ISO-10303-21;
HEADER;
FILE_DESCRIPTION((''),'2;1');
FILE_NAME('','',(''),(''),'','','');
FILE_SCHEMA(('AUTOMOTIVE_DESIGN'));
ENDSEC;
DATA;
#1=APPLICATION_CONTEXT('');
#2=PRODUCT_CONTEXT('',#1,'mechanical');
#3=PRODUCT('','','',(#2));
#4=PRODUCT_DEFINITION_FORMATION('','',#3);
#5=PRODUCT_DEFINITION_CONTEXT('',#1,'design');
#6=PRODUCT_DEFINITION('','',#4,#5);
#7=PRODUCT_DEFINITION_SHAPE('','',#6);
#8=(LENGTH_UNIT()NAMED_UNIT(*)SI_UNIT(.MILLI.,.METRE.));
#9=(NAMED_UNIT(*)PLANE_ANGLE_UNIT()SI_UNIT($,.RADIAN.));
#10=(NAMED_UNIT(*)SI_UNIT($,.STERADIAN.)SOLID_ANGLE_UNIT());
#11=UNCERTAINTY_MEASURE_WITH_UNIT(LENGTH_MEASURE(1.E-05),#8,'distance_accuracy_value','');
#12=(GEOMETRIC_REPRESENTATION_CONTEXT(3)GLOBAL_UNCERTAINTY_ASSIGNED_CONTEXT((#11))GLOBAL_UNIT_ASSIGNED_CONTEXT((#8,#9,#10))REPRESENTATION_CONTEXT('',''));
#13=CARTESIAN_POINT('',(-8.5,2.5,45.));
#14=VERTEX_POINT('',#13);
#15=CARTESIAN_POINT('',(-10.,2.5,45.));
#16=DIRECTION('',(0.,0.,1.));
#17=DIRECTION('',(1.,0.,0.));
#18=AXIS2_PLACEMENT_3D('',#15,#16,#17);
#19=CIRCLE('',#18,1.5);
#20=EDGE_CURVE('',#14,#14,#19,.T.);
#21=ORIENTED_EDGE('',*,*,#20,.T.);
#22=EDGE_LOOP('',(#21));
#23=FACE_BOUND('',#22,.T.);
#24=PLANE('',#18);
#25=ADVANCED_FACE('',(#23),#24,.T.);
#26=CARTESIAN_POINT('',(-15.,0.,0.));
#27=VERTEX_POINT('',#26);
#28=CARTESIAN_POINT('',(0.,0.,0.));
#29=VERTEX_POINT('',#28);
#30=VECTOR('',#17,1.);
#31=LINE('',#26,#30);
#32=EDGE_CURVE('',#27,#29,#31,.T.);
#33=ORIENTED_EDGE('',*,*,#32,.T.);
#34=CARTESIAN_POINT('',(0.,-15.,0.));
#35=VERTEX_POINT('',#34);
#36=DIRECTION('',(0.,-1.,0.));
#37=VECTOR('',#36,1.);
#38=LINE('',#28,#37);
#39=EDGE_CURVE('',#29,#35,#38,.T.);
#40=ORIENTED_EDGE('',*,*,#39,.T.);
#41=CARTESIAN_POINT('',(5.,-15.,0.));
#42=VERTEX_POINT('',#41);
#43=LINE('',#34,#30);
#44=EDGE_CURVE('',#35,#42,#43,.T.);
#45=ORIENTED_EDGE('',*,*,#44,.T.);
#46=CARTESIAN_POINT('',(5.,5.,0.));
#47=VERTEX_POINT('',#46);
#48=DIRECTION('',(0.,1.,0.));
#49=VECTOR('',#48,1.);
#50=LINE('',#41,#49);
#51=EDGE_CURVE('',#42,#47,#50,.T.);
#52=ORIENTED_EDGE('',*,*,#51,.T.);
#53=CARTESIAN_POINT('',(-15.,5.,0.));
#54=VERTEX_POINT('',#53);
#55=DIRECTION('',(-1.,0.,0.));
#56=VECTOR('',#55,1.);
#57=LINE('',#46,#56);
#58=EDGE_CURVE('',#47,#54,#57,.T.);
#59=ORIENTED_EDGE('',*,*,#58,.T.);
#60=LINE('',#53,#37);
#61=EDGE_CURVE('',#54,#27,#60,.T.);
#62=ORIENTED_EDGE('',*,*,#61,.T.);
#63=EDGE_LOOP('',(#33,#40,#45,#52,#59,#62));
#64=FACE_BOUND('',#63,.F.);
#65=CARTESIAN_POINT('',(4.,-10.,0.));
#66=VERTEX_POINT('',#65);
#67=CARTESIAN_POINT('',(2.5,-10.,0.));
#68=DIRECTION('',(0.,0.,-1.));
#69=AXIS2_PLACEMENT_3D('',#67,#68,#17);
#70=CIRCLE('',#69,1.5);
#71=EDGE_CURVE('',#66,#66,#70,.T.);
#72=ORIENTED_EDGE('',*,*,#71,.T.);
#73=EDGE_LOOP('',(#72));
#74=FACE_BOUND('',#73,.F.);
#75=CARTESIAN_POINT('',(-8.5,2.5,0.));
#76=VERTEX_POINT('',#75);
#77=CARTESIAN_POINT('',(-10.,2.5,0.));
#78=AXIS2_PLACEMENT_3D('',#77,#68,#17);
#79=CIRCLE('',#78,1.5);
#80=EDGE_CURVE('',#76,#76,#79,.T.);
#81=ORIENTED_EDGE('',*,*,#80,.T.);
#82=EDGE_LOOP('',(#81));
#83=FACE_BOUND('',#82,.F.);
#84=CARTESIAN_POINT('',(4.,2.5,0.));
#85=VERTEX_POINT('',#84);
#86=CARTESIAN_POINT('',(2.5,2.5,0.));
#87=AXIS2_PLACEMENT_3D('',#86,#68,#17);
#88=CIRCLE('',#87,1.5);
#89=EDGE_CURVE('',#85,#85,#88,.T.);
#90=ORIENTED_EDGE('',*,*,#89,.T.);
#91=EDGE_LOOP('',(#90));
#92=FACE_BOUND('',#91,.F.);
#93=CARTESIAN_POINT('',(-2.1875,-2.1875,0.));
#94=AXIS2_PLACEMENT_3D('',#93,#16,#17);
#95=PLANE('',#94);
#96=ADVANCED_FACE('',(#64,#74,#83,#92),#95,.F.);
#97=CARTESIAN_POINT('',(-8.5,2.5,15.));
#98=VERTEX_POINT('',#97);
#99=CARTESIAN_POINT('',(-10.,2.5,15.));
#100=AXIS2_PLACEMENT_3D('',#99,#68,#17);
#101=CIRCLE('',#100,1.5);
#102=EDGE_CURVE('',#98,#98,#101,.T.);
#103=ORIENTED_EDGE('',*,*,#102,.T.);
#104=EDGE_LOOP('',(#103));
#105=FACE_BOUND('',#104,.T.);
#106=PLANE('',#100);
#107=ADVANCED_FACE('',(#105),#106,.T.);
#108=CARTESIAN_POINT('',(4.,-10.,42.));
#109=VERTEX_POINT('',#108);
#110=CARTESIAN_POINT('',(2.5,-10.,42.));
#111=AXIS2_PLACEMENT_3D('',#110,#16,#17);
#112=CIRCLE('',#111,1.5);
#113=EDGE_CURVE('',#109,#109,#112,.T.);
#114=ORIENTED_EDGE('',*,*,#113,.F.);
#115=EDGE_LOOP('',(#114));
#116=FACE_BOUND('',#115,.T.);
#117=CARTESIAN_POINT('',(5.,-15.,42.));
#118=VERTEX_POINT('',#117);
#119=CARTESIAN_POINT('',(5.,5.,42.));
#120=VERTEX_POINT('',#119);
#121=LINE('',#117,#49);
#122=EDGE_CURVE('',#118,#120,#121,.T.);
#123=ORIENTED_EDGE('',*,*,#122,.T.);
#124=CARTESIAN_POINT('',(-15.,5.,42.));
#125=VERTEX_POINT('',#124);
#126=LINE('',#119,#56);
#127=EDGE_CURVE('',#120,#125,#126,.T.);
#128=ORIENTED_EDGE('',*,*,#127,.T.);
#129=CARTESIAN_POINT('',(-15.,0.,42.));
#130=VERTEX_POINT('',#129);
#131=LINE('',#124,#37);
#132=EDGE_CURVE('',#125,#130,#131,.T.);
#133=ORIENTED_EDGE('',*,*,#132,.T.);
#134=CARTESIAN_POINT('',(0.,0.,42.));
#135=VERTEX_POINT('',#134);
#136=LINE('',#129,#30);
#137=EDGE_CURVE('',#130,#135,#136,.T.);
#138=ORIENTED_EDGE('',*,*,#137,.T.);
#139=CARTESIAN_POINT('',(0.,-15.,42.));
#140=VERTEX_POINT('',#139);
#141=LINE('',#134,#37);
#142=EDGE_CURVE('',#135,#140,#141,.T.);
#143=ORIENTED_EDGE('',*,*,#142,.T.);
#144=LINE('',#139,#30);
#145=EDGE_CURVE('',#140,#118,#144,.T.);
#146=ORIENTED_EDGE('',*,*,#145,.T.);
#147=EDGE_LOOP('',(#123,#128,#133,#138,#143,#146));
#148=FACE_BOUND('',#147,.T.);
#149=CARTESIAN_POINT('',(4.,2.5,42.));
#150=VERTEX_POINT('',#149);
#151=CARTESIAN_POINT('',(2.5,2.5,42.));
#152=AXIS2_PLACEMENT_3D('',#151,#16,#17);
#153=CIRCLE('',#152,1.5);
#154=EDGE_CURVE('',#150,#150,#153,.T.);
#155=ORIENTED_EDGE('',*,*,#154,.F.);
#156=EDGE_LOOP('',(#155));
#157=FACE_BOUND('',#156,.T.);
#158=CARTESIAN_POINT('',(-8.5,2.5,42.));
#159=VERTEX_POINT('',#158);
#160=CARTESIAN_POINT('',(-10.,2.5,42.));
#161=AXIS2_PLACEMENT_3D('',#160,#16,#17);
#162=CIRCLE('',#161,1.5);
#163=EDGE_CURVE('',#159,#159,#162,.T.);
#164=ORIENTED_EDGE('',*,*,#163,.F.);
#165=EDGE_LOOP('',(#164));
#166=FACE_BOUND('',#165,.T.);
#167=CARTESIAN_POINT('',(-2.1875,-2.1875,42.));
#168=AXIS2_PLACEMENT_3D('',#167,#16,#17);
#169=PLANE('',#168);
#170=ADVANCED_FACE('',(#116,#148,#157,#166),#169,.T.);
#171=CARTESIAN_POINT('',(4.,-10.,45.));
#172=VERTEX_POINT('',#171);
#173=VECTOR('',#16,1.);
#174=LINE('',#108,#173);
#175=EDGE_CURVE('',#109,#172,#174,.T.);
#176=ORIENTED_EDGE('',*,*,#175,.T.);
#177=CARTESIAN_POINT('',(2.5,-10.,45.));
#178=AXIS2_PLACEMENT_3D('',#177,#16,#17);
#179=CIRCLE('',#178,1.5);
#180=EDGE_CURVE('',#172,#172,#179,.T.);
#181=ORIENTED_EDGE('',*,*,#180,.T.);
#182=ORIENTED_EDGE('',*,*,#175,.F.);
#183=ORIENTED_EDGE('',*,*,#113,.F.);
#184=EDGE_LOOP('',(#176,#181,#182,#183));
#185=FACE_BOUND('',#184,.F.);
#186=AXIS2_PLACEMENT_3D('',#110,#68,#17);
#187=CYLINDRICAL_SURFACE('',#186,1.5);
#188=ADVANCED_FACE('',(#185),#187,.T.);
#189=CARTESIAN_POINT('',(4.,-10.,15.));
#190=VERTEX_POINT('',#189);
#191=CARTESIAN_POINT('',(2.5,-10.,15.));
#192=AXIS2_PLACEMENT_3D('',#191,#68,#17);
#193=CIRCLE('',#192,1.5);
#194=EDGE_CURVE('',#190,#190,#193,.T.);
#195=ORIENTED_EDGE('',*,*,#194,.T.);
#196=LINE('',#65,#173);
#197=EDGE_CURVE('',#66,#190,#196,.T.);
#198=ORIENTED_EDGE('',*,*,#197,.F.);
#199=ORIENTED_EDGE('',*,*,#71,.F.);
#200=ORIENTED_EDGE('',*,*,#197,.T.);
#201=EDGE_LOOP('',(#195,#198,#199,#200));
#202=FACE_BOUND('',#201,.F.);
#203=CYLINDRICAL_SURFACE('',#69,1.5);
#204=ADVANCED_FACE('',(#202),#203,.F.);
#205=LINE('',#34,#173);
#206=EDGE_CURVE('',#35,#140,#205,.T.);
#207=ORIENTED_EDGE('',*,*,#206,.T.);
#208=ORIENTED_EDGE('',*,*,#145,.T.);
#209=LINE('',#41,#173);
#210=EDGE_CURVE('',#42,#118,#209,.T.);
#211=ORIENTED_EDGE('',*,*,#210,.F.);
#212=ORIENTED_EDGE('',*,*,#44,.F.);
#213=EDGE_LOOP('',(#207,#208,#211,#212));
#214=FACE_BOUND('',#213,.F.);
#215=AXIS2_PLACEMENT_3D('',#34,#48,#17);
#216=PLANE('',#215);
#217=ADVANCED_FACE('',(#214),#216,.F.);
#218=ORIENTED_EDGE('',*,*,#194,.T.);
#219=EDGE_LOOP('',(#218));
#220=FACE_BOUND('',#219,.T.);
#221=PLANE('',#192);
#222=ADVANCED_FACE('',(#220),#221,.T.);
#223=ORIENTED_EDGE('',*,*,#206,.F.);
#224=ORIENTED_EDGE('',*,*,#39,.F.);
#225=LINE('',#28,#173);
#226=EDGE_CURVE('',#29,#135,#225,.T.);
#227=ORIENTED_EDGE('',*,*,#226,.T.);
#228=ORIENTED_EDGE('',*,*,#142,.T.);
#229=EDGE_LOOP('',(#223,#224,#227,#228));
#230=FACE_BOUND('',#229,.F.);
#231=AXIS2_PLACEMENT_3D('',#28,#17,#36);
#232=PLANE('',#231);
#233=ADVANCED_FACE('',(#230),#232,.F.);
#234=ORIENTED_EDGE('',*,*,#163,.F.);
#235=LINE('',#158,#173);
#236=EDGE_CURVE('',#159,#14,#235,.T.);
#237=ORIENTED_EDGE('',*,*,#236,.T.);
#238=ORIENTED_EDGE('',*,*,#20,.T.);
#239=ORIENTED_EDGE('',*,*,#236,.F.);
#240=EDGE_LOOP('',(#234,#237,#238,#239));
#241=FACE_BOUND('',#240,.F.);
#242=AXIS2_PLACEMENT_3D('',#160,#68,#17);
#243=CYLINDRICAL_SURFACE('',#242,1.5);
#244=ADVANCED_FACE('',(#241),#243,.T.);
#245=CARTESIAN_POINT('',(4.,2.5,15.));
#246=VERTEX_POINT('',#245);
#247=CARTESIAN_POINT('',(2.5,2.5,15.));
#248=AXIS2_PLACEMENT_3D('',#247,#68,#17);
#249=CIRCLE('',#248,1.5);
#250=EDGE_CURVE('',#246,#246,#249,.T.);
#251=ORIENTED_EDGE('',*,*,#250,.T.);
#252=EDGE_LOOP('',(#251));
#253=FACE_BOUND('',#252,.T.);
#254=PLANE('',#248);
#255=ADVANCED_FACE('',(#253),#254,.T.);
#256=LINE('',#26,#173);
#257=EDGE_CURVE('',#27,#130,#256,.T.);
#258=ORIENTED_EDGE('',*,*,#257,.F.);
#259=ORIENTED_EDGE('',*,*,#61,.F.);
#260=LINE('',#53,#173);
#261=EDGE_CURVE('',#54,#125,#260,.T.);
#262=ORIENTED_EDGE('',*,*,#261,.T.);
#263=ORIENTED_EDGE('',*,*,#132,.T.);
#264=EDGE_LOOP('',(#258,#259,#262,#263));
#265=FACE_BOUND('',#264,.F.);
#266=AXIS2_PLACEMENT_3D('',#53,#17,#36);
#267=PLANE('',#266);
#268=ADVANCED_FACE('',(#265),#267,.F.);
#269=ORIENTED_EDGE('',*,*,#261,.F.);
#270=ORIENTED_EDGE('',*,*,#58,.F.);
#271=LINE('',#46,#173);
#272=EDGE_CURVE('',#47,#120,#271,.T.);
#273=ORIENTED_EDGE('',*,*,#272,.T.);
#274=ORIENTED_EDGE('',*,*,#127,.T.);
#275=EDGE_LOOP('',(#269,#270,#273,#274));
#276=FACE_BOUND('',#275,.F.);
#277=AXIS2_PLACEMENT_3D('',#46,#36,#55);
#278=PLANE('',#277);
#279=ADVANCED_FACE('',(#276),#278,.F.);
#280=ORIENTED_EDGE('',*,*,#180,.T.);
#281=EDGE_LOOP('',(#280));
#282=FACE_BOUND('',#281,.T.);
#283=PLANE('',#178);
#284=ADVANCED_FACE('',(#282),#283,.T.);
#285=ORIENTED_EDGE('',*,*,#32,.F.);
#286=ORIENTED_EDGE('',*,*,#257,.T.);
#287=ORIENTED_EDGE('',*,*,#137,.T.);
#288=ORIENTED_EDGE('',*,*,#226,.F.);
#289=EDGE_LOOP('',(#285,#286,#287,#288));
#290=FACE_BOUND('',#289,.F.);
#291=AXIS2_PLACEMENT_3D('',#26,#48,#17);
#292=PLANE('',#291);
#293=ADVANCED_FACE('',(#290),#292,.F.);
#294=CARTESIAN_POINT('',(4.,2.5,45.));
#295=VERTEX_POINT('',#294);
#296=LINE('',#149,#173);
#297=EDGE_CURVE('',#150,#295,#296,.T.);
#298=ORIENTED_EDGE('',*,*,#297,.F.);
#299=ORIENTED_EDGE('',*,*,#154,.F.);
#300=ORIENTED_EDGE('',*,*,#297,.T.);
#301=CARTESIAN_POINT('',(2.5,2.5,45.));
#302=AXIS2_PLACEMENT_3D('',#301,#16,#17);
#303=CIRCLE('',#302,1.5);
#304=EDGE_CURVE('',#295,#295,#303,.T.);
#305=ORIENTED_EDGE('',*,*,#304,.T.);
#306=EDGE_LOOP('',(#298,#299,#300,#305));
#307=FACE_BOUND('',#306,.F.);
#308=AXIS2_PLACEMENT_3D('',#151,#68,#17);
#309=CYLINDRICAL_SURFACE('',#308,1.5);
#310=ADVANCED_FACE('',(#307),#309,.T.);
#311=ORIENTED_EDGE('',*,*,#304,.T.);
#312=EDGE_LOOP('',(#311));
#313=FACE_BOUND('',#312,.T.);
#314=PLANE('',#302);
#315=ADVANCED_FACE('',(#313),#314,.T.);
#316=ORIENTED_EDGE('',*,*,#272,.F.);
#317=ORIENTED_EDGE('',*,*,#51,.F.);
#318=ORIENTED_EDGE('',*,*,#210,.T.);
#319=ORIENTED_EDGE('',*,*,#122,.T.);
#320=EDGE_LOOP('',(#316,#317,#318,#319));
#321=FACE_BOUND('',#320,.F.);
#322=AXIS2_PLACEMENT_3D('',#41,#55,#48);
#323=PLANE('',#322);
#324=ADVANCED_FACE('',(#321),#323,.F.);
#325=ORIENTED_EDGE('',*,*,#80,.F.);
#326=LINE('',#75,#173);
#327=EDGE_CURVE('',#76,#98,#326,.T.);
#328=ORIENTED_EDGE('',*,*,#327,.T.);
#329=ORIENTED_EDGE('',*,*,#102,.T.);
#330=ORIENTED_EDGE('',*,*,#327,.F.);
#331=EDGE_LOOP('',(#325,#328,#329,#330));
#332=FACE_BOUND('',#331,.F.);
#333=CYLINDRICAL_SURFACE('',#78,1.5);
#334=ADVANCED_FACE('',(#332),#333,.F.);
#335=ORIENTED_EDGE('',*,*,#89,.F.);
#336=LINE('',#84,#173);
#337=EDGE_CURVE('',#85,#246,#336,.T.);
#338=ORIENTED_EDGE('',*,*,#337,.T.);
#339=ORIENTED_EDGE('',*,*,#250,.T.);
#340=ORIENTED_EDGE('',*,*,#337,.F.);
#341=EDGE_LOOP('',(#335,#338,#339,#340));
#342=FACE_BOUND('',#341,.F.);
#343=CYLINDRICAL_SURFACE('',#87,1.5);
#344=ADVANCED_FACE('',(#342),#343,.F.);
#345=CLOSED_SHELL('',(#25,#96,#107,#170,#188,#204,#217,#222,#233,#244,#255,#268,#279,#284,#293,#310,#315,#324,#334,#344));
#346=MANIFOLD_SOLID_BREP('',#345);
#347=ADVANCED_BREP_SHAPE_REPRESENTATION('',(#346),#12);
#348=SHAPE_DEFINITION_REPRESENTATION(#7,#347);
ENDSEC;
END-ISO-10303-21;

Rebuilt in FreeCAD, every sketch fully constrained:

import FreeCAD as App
import Part
import Sketcher

V = App.Vector
Q = App.Units.Quantity


def add_polygon(sketch, points):
    """Adds a closed chain of lines whose ends are joined by coincident constraints."""
    first, n = sketch.GeometryCount, len(points)
    for a, b in zip(points, points[1:] + points[:1]):
        sketch.addGeometry(Part.LineSegment(App.Vector(*a, 0), App.Vector(*b, 0)), False)
    for i in range(n):
        sketch.addConstraint(Sketcher.Constraint("Coincident", first + i, 2, first + (i + 1) % n, 1))

doc = App.newDocument("Part")
body = doc.addObject("PartDesign::Body", "Body")

# Sketch on XY plane
sketch1 = body.newObject("Sketcher::SketchObject", "Sketch")
sketch1.AttachmentSupport = (doc.getObject("XY_Plane"), [""])
sketch1.MapMode = "FlatFace"
add_polygon(sketch1, [(0, 0), (0, -15), (5, -15), (5, 5), (-15, 5), (-15, 0)])  # lines 0-5
sketch1.addConstraint([
    Sketcher.Constraint("Vertical", 0),
    Sketcher.Constraint("Horizontal", 1),
    Sketcher.Constraint("Vertical", 2),
    Sketcher.Constraint("Horizontal", 3),
    Sketcher.Constraint("Vertical", 4),
    Sketcher.Constraint("Horizontal", 5),
    Sketcher.Constraint("Coincident", 5, 2, -1, 1),
    Sketcher.Constraint("Equal", 5, 0),
    Sketcher.Constraint("Equal", 3, 2),
    Sketcher.Constraint("DistanceX", 1, 1, 1, 2, Q("5 mm")),
    Sketcher.Constraint("DistanceX", 3, 2, 3, 1, Q("20 mm")),
])
pad1 = body.newObject("PartDesign::Pad", "Pad")
pad1.Profile = sketch1
pad1.Length = 42

# Sketch on XY plane
sketch2 = body.newObject("Sketcher::SketchObject", "Sketch001")
sketch2.AttachmentSupport = (doc.getObject("XY_Plane"), [""])
sketch2.MapMode = "FlatFace"
sketch2.AttachmentOffset = App.Placement(V(0, 0, 42), App.Rotation())
sketch2.addGeometry([
    Part.Circle(V(-10, 2.5, 0), V(0, 0, 1), 1.5),
    Part.Circle(V(2.5, 2.5, 0), V(0, 0, 1), 1.5),
    Part.Circle(V(2.5, -10, 0), V(0, 0, 1), 1.5),
], False)
sketch2.addConstraint([
    Sketcher.Constraint("Equal", 0, 1),
    Sketcher.Constraint("Equal", 1, 2),
    Sketcher.Constraint("Horizontal", 0, 3, 1, 3),
    Sketcher.Constraint("Vertical", 1, 3, 2, 3),
    Sketcher.Constraint("Diameter", 0, Q("3 mm")),
    Sketcher.Constraint("DistanceX", 0, 3, -1, 1, Q("10 mm")),
    Sketcher.Constraint("DistanceY", 2, 3, -1, 1, Q("10 mm")),
    Sketcher.Constraint("DistanceY", -1, 1, 0, 3, Q("2.5 mm")),
    Sketcher.Constraint("DistanceX", -1, 1, 1, 3, Q("2.5 mm")),
])
pad2 = body.newObject("PartDesign::Pad", "Pad001")
pad2.Profile = sketch2
pad2.Length = 3

# Sketch on XY plane
sketch3 = body.newObject("Sketcher::SketchObject", "Sketch002")
sketch3.AttachmentSupport = (doc.getObject("XY_Plane"), [""])
sketch3.MapMode = "FlatFace"
sketch3.addGeometry([
    Part.Circle(V(2.5, 2.5, 0), V(0, 0, 1), 1.5),
    Part.Circle(V(2.5, -10, 0), V(0, 0, 1), 1.5),
    Part.Circle(V(-10, 2.5, 0), V(0, 0, 1), 1.5),
], False)
sketch3.addConstraint([
    Sketcher.Constraint("Equal", 0, 1),
    Sketcher.Constraint("Equal", 1, 2),
    Sketcher.Constraint("Horizontal", 0, 3, 2, 3),
    Sketcher.Constraint("Vertical", 0, 3, 1, 3),
    Sketcher.Constraint("Diameter", 0, Q("3 mm")),
    Sketcher.Constraint("DistanceY", 1, 3, -1, 1, Q("10 mm")),
    Sketcher.Constraint("DistanceX", 2, 3, -1, 1, Q("10 mm")),
    Sketcher.Constraint("DistanceX", -1, 1, 0, 3, Q("2.5 mm")),
    Sketcher.Constraint("DistanceY", -1, 1, 0, 3, Q("2.5 mm")),
])
pocket1 = body.newObject("PartDesign::Pocket", "Pocket")
pocket1.Profile = sketch3
pocket1.Length = 15
pocket1.Reversed = True

doc.recompute()
